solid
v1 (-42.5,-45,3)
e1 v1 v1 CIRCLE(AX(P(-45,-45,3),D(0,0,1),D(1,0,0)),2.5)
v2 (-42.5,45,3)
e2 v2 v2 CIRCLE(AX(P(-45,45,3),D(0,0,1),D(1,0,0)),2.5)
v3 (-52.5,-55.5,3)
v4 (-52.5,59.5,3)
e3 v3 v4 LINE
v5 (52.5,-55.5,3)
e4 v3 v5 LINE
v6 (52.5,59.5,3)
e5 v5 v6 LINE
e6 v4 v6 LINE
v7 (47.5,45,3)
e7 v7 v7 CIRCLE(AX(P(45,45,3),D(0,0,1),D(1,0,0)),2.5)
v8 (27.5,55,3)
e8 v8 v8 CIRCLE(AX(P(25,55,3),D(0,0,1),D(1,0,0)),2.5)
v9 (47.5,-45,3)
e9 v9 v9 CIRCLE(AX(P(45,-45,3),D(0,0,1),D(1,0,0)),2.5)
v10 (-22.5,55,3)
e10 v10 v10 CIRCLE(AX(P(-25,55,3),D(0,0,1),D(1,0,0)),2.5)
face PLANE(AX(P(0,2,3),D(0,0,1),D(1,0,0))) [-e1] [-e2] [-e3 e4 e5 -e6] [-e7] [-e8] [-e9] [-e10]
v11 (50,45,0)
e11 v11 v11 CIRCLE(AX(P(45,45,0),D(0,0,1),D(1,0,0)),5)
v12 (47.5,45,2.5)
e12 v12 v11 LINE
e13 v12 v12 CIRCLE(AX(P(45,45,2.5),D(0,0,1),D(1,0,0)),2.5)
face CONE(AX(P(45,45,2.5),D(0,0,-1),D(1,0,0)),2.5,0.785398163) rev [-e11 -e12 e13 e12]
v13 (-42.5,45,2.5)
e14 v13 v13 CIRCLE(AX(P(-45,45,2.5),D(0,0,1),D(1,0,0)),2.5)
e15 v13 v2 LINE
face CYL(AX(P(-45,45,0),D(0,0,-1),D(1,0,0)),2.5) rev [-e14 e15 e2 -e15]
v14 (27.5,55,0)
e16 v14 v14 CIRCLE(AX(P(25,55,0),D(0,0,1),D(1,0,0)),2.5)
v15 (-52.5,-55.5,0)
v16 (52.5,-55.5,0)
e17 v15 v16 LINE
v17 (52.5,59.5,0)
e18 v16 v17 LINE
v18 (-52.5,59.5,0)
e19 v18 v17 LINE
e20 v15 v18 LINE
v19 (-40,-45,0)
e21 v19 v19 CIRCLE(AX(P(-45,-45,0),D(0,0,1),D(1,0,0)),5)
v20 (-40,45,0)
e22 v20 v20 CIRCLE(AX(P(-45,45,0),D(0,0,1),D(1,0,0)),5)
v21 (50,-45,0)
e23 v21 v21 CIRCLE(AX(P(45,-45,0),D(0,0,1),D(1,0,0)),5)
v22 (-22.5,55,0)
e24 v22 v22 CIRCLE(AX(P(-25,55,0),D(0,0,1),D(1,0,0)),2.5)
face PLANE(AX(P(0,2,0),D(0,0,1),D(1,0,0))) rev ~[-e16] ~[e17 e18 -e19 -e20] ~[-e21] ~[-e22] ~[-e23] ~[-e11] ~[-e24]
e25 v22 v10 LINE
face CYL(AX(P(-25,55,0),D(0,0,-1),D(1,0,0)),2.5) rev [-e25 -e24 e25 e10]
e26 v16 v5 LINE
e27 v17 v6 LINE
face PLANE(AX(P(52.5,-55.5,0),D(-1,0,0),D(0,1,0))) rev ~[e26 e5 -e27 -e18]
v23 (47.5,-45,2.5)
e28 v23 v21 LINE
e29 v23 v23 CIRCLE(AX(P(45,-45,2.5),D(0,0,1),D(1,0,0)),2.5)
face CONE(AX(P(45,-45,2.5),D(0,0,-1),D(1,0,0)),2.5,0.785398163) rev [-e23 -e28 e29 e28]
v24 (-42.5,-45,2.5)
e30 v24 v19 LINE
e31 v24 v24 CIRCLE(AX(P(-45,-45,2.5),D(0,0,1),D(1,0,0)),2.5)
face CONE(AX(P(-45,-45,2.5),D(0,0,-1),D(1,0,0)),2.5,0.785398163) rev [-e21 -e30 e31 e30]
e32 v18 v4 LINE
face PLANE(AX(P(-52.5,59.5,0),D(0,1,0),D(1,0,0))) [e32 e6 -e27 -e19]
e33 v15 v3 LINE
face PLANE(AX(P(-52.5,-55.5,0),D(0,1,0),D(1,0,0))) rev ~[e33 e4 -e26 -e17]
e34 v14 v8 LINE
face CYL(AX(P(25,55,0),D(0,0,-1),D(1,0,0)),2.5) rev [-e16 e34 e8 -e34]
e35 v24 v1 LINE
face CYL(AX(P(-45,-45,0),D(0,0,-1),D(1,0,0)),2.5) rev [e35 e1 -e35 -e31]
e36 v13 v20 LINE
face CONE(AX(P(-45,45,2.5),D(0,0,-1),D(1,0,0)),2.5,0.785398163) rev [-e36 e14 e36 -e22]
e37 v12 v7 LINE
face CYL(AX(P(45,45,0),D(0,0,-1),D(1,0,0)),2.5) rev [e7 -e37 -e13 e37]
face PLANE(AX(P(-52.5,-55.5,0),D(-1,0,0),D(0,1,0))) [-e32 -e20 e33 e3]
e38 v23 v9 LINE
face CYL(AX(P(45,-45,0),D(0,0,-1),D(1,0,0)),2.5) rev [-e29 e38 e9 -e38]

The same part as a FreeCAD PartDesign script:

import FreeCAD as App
import Part
import Sketcher
from FreeCAD import Vector


def edges_at(feature, points):
    """Names of the edges that pass closest to the given points."""
    edges = feature.Shape.Edges
    near = lambda p: min(range(len(edges)), key=lambda i: edges[i].distToShape(Part.Vertex(*p))[0])
    return sorted({f"Edge{near(p) + 1}" for p in points})


def add_polygon(sketch, points):
    """Adds a closed chain of lines whose ends are joined by coincident constraints."""
    first, n = sketch.GeometryCount, len(points)
    for a, b in zip(points, points[1:] + points[:1]):
        sketch.addGeometry(Part.LineSegment(App.Vector(*a, 0), App.Vector(*b, 0)), False)
    for i in range(n):
        sketch.addConstraint(Sketcher.Constraint("Coincident", first + i, 2, first + (i + 1) % n, 1))

doc = App.newDocument("Part")
params = doc.addObject("Spreadsheet::Sheet", "Params")
for row, (alias, value) in enumerate([
    ("sketch1_diameter", "5 mm"),
    ("sketch1_width", "105 mm"),
    ("sketch1_height", "115 mm"),
    ("pad1_length", "3 mm"),
    ("chamfer_size", "2.5 mm"),
    ("chamfer_size2", "2.5 mm"),
], start=1):
    params.set(f"A{row}", alias)
    params.set(f"B{row}", "=" + value)
    params.setAlias(f"B{row}", alias)

body = doc.addObject("PartDesign::Body", "Body")

sketch1 = body.newObject("Sketcher::SketchObject", "Sketch")
sketch1.AttachmentSupport = (doc.getObject("XY_Plane"), [""])
sketch1.MapMode = "FlatFace"
add_polygon(sketch1, [(-52.5, 59.5), (-52.5, -55.5), (52.5, -55.5), (52.5, 59.5)])
sketch1.addGeometry(Part.Circle(Vector(-45, -45, 0), Vector(0, 0, 1), 2.5), False)
sketch1.addGeometry(Part.Circle(Vector(45, -45, 0), Vector(0, 0, 1), 2.5), False)
sketch1.addGeometry(Part.Circle(Vector(-45, 45, 0), Vector(0, 0, 1), 2.5), False)
sketch1.addGeometry(Part.Circle(Vector(-25, 55, 0), Vector(0, 0, 1), 2.5), False)
sketch1.addGeometry(Part.Circle(Vector(25, 55, 0), Vector(0, 0, 1), 2.5), False)
sketch1.addGeometry(Part.Circle(Vector(45, 45, 0), Vector(0, 0, 1), 2.5), False)
sketch1.addConstraint([
    Sketcher.Constraint("Vertical", 0),
    Sketcher.Constraint("Horizontal", 1),
    Sketcher.Constraint("Vertical", 2),
    Sketcher.Constraint("Horizontal", 3),
    Sketcher.Constraint("Equal", 4, 5),
    Sketcher.Constraint("Equal", 5, 6),
    Sketcher.Constraint("Equal", 6, 7),
    Sketcher.Constraint("Equal", 7, 8),
    Sketcher.Constraint("Equal", 8, 9),
    Sketcher.Constraint("Symmetric", 5, 3, 6, 3, -1, 1),
    Sketcher.Constraint("Symmetric", 4, 3, 9, 3, -1, 1),
    Sketcher.Constraint("Symmetric", 4, 3, 5, 3, -2),
    Sketcher.Constraint("Symmetric", 7, 3, 8, 3, -2),
    Sketcher.Constraint("Diameter", 4, 5.0),
    Sketcher.Constraint("DistanceX", 1, 1, 1, 2, 105.0),
    Sketcher.Constraint("DistanceY", 0, 2, 0, 1, 115.0),
    Sketcher.Constraint("DistanceX", 4, 3, -1, 1, 45.0),
    Sketcher.Constraint("DistanceY", 4, 3, -1, 1, 45.0),
    Sketcher.Constraint("DistanceX", 7, 3, -1, 1, 25.0),
    Sketcher.Constraint("DistanceY", -1, 1, 7, 3, 55.0),
    Sketcher.Constraint("DistanceX", 0, 2, -1, 1, 52.5),
    Sketcher.Constraint("DistanceY", 0, 2, -1, 1, 55.5),
])
sketch1.setExpression("Constraints[17]", "Params.sketch1_diameter")
sketch1.setExpression("Constraints[18]", "Params.sketch1_width")
sketch1.setExpression("Constraints[19]", "Params.sketch1_height")
pad1 = body.newObject("PartDesign::Pad", "Pad")
pad1.Profile = sketch1
pad1.setExpression("Length", "Params.pad1_length")
doc.recompute()

chamfer = body.newObject("PartDesign::Chamfer", "Chamfer")
chamfer.Base = (pad1, edges_at(pad1, [
    (-47.5, -45, 0),
    (42.5, -45, 0),
    (42.5, 45, 0),
    (-47.5, 45, 0),
]))
chamfer.ChamferType = "Two distances"
chamfer.setExpression("Size", "Params.chamfer_size")
chamfer.setExpression("Size2", "Params.chamfer_size2")

doc.recompute()
